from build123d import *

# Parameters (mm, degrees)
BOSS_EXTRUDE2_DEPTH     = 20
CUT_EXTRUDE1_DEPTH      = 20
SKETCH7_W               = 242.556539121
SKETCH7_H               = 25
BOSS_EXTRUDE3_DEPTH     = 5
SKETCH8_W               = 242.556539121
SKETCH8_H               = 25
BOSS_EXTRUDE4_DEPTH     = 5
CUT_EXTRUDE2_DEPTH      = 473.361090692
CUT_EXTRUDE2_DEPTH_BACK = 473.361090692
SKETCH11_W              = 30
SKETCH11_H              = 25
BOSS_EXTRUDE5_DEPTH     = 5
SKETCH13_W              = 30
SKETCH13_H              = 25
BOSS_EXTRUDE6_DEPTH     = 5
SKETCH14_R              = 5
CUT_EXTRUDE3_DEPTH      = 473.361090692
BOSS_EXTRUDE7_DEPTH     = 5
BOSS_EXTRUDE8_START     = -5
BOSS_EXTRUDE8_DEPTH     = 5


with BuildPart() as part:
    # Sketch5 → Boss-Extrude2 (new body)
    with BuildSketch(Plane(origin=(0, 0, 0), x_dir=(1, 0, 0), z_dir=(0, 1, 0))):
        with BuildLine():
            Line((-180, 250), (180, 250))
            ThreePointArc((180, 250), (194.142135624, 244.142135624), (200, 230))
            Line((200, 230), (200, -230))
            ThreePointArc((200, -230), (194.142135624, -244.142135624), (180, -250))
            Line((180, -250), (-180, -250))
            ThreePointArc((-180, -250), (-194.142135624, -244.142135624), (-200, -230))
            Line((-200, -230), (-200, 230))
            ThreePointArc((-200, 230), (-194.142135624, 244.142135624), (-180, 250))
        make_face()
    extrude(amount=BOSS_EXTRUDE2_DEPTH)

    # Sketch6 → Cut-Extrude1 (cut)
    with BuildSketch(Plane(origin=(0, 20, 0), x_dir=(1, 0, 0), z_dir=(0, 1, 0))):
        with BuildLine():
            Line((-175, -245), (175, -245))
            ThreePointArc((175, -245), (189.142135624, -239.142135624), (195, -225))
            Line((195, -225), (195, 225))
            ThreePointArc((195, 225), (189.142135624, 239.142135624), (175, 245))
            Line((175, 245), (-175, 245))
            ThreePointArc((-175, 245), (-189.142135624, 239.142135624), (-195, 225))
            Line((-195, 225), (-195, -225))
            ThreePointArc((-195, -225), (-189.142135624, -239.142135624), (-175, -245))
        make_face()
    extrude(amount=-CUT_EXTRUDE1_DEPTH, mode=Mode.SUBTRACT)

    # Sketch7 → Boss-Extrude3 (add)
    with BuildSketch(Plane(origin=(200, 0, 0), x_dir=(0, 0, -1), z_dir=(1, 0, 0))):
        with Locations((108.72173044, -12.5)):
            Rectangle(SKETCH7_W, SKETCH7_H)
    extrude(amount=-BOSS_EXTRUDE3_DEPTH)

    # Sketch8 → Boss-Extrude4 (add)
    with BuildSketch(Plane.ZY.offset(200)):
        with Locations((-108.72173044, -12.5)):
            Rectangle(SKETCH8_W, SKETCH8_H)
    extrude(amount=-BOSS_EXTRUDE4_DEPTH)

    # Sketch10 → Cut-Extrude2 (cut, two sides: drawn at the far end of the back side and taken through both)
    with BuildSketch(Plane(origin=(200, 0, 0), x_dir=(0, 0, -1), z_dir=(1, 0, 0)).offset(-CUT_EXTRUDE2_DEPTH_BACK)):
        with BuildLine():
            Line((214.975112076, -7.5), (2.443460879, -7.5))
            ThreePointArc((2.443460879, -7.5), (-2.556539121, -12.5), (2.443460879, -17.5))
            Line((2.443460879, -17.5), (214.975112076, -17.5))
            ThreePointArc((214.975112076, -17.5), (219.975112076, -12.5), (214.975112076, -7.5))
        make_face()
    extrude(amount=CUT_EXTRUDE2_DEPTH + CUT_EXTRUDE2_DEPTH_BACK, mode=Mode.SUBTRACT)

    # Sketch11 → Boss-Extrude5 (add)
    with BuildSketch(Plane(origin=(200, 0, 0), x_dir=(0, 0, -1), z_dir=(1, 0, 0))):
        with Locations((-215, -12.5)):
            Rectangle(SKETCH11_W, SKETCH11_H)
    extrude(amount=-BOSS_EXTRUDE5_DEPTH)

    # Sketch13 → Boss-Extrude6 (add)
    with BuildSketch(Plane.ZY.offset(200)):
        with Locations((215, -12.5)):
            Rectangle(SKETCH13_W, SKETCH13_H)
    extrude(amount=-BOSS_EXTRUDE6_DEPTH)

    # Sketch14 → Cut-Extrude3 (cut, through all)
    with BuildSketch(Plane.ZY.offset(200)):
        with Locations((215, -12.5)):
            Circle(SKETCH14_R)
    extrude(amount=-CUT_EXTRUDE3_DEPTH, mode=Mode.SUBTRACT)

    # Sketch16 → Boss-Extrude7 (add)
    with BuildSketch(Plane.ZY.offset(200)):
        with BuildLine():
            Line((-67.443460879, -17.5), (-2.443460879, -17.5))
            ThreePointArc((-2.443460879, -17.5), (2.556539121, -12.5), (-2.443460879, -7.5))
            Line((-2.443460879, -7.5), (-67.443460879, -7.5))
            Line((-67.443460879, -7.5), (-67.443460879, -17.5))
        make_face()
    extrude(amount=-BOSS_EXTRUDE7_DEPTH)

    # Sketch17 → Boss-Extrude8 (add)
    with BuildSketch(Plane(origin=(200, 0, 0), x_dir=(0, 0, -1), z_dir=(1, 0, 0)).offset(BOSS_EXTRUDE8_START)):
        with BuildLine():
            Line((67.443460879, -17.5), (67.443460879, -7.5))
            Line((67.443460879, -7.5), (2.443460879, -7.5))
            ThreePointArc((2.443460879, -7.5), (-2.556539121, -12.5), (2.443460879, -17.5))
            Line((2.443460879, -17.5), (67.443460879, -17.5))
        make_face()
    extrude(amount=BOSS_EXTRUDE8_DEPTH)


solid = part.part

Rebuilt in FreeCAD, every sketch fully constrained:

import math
import FreeCAD as App
import Part
import Sketcher
from FreeCAD import Vector


def add_polygon(sketch, points):
    """Adds a closed chain of lines whose ends are joined by coincident constraints."""
    first, n = sketch.GeometryCount, len(points)
    for a, b in zip(points, points[1:] + points[:1]):
        sketch.addGeometry(Part.LineSegment(App.Vector(*a, 0), App.Vector(*b, 0)), False)
    for i in range(n):
        sketch.addConstraint(Sketcher.Constraint("Coincident", first + i, 2, first + (i + 1) % n, 1))

doc = App.newDocument("Part")
body = doc.addObject("PartDesign::Body", "Body")

# Sketch on XZ plane
sketch1 = doc.addObject("Sketcher::SketchObject", "Sketch")
body.addObject(sketch1)
sketch1.AttachmentSupport = (doc.XZ_Plane, [""])
sketch1.MapMode = "FlatFace"
sketch1.addGeometry([
    Part.LineSegment(Vector(180, -250, 0), Vector(-180, -250, 0)),  # 0
    Part.ArcOfCircle(Part.Circle(Vector(-180, -230, 0), Vector(0, 0, 1), 20), math.radians(180), math.radians(270)),  # 1
    Part.LineSegment(Vector(-200, -230, 0), Vector(-200, 230, 0)),  # 2
    Part.ArcOfCircle(Part.Circle(Vector(-180, 230, 0), Vector(0, 0, 1), 20), math.radians(90), math.radians(180)),  # 3
    Part.LineSegment(Vector(-180, 250, 0), Vector(180, 250, 0)),  # 4
    Part.ArcOfCircle(Part.Circle(Vector(180, 230, 0), Vector(0, 0, 1), 20), math.radians(0), math.radians(90)),  # 5
    Part.LineSegment(Vector(200, 230, 0), Vector(200, -230, 0)),  # 6
    Part.ArcOfCircle(Part.Circle(Vector(180, -230, 0), Vector(0, 0, 1), 20), math.radians(-90), math.radians(0)),  # 7
], False)
sketch1.addConstraint([
    Sketcher.Constraint("Tangent", 0, 2, 1, 2),
    Sketcher.Constraint("Tangent", 1, 1, 2, 1),
    Sketcher.Constraint("Tangent", 2, 2, 3, 2),
    Sketcher.Constraint("Tangent", 3, 1, 4, 1),
    Sketcher.Constraint("Tangent", 4, 2, 5, 2),
    Sketcher.Constraint("Tangent", 5, 1, 6, 1),
    Sketcher.Constraint("Tangent", 6, 2, 7, 2),
    Sketcher.Constraint("Tangent", 7, 1, 0, 1),
    Sketcher.Constraint("Horizontal", 0),
    Sketcher.Constraint("Vertical", 2),
    Sketcher.Constraint("Horizontal", 4),
    Sketcher.Constraint("Vertical", 6),
    Sketcher.Constraint("Equal", 1, 3),
    Sketcher.Constraint("Equal", 3, 5),
    Sketcher.Constraint("Equal", 5, 7),
    Sketcher.Constraint("Symmetric", 1, 3, 5, 3, -1, 1),
    Sketcher.Constraint("Radius", 1, 20.0),
    Sketcher.Constraint("DistanceX", 0, 2, 0, 1, 360.0),
    Sketcher.Constraint("DistanceY", 2, 1, 2, 2, 460.0),
])
pad1 = doc.addObject("PartDesign::Pad", "Pad")
body.addObject(pad1)
pad1.Profile = sketch1
pad1.Length = 20
pad1.Reversed = True

# Sketch on XZ plane
sketch2 = doc.addObject("Sketcher::SketchObject", "Sketch001")
body.addObject(sketch2)
sketch2.AttachmentSupport = (doc.XZ_Plane, [""])
sketch2.MapMode = "FlatFace"
sketch2.AttachmentOffset = App.Placement(Vector(0, 0, -20), App.Rotation())
sketch2.addGeometry([
    Part.LineSegment(Vector(-175, 245, 0), Vector(175, 245, 0)),  # 0
    Part.ArcOfCircle(Part.Circle(Vector(175, 225, 0), Vector(0, 0, 1), 20), math.radians(0), math.radians(90)),  # 1
    Part.LineSegment(Vector(195, 225, 0), Vector(195, -225, 0)),  # 2
    Part.ArcOfCircle(Part.Circle(Vector(175, -225, 0), Vector(0, 0, 1), 20), math.radians(-90), math.radians(0)),  # 3
    Part.LineSegment(Vector(175, -245, 0), Vector(-175, -245, 0)),  # 4
    Part.ArcOfCircle(Part.Circle(Vector(-175, -225, 0), Vector(0, 0, 1), 20), math.radians(180), math.radians(270)),  # 5
    Part.LineSegment(Vector(-195, -225, 0), Vector(-195, 225, 0)),  # 6
    Part.ArcOfCircle(Part.Circle(Vector(-175, 225, 0), Vector(0, 0, 1), 20), math.radians(90), math.radians(180)),  # 7
], False)
sketch2.addConstraint([
    Sketcher.Constraint("Tangent", 0, 2, 1, 2),
    Sketcher.Constraint("Tangent", 1, 1, 2, 1),
    Sketcher.Constraint("Tangent", 2, 2, 3, 2),
    Sketcher.Constraint("Tangent", 3, 1, 4, 1),
    Sketcher.Constraint("Tangent", 4, 2, 5, 2),
    Sketcher.Constraint("Tangent", 5, 1, 6, 1),
    Sketcher.Constraint("Tangent", 6, 2, 7, 2),
    Sketcher.Constraint("Tangent", 7, 1, 0, 1),
    Sketcher.Constraint("Horizontal", 0),
    Sketcher.Constraint("Vertical", 2),
    Sketcher.Constraint("Horizontal", 4),
    Sketcher.Constraint("Vertical", 6),
    Sketcher.Constraint("Equal", 1, 3),
    Sketcher.Constraint("Equal", 3, 5),
    Sketcher.Constraint("Equal", 5, 7),
    Sketcher.Constraint("Symmetric", 1, 3, 5, 3, -1, 1),
    Sketcher.Constraint("Radius", 1, 20.0),
    Sketcher.Constraint("DistanceX", 0, 1, 0, 2, 350.0),
    Sketcher.Constraint("DistanceY", 2, 2, 2, 1, 450.0),
])
pocket1 = doc.addObject("PartDesign::Pocket", "Pocket")
body.addObject(pocket1)
pocket1.Profile = sketch2
pocket1.Length = 20
pocket1.Reversed = True

# Sketch on YZ plane
sketch3 = doc.addObject("Sketcher::SketchObject", "Sketch002")
body.addObject(sketch3)
sketch3.AttachmentSupport = (doc.YZ_Plane, [""])
sketch3.MapMode = "FlatFace"
sketch3.AttachmentOffset = App.Placement(Vector(0, 0, 200), App.Rotation())
add_polygon(sketch3, [(0, 12.556539), (-25, 12.556539), (-25, -230), (0, -230)])  # lines 0-3
sketch3.addConstraint([
    Sketcher.Constraint("Horizontal", 0),
    Sketcher.Constraint("Vertical", 1),
    Sketcher.Constraint("Horizontal", 2),
    Sketcher.Constraint("Vertical", 3),
    Sketcher.Constraint("PointOnObject", 2, 2, -2),
    Sketcher.Constraint("DistanceX", 0, 2, 0, 1, 25.0),
    Sketcher.Constraint("DistanceY", 1, 2, -1, 1, 230.0),
    Sketcher.Constraint("DistanceY", 1, 2, 1, 1, 242.556539),
])
pad2 = doc.addObject("PartDesign::Pad", "Pad001")
body.addObject(pad2)
pad2.Profile = sketch3
pad2.Length = 5
pad2.Reversed = True

# Sketch on YZ plane
sketch4 = doc.addObject("Sketcher::SketchObject", "Sketch003")
body.addObject(sketch4)
sketch4.AttachmentSupport = (doc.YZ_Plane, [""])
sketch4.MapMode = "FlatFace"
sketch4.AttachmentOffset = App.Placement(Vector(0, 0, -200), App.Rotation())
add_polygon(sketch4, [(0, -230), (-25, -230), (-25, 12.556539), (0, 12.556539)])  # lines 0-3
sketch4.addConstraint([
    Sketcher.Constraint("Horizontal", 0),
    Sketcher.Constraint("Vertical", 1),
    Sketcher.Constraint("Horizontal", 2),
    Sketcher.Constraint("Vertical", 3),
    Sketcher.Constraint("PointOnObject", 2, 2, -2),
    Sketcher.Constraint("DistanceX", 0, 2, 0, 1, 25.0),
    Sketcher.Constraint("DistanceY", 0, 2, -1, 1, 230.0),
    Sketcher.Constraint("DistanceY", 1, 1, 1, 2, 242.556539),
])
pad3 = doc.addObject("PartDesign::Pad", "Pad002")
body.addObject(pad3)
pad3.Profile = sketch4
pad3.Length = 5

# Sketch on YZ plane
sketch5 = doc.addObject("Sketcher::SketchObject", "Sketch004")
body.addObject(sketch5)
sketch5.AttachmentSupport = (doc.YZ_Plane, [""])
sketch5.MapMode = "FlatFace"
sketch5.AttachmentOffset = App.Placement(Vector(0, 0, 200), App.Rotation())
sketch5.addGeometry([
    Part.LineSegment(Vector(-7.5, -214.975112, 0), Vector(-7.5, -2.443461, 0)),
    Part.ArcOfCircle(Part.Circle(Vector(-12.5, -2.443461, 0), Vector(0, 0, 1), 5), math.radians(0), math.radians(180)),
    Part.LineSegment(Vector(-17.5, -2.443461, 0), Vector(-17.5, -214.975112, 0)),
    Part.ArcOfCircle(Part.Circle(Vector(-12.5, -214.975112, 0), Vector(0, 0, 1), 5), math.radians(180), math.radians(360)),
], False)
sketch5.addConstraint([
    Sketcher.Constraint("Tangent", 0, 2, 1, 1),
    Sketcher.Constraint("Tangent", 1, 2, 2, 1),
    Sketcher.Constraint("Tangent", 2, 2, 3, 1),
    Sketcher.Constraint("Tangent", 3, 2, 0, 1),
    Sketcher.Constraint("Vertical", 0),
    Sketcher.Constraint("Vertical", 2),
    Sketcher.Constraint("Radius", 1, 5.0),
    Sketcher.Constraint("DistanceX", 1, 3, -1, 1, 12.5),
    Sketcher.Constraint("DistanceY", 0, 1, 0, 2, 212.531651),
    Sketcher.Constraint("DistanceY", 1, 3, -1, 1, 2.443461),
])
pocket2 = doc.addObject("PartDesign::Pocket", "Pocket001")
body.addObject(pocket2)
pocket2.Profile = sketch5
pocket2.Type = "ThroughAll"
pocket2.Midplane = True

# Sketch on YZ plane
sketch6 = doc.addObject("Sketcher::SketchObject", "Sketch005")
body.addObject(sketch6)
sketch6.AttachmentSupport = (doc.YZ_Plane, [""])
sketch6.MapMode = "FlatFace"
sketch6.AttachmentOffset = App.Placement(Vector(0, 0, 200), App.Rotation())
add_polygon(sketch6, [(0, 230), (-25, 230), (-25, 200), (0, 200)])  # lines 0-3
sketch6.addConstraint([
    Sketcher.Constraint("Horizontal", 0),
    Sketcher.Constraint("Vertical", 1),
    Sketcher.Constraint("Horizontal", 2),
    Sketcher.Constraint("Vertical", 3),
    Sketcher.Constraint("PointOnObject", 2, 2, -2),
    Sketcher.Constraint("DistanceX", 0, 2, 0, 1, 25.0),
    Sketcher.Constraint("DistanceY", 1, 2, 1, 1, 30.0),
    Sketcher.Constraint("DistanceY", -1, 1, 0, 2, 230.0),
])
pad4 = doc.addObject("PartDesign::Pad", "Pad003")
body.addObject(pad4)
pad4.Profile = sketch6
pad4.Length = 5
pad4.Reversed = True

# Sketch on YZ plane
sketch7 = doc.addObject("Sketcher::SketchObject", "Sketch006")
body.addObject(sketch7)
sketch7.AttachmentSupport = (doc.YZ_Plane, [""])
sketch7.MapMode = "FlatFace"
sketch7.AttachmentOffset = App.Placement(Vector(0, 0, -200), App.Rotation())
add_polygon(sketch7, [(0, 200), (-25, 200), (-25, 230), (0, 230)])  # lines 0-3
sketch7.addConstraint([
    Sketcher.Constraint("Horizontal", 0),
    Sketcher.Constraint("Vertical", 1),
    Sketcher.Constraint("Horizontal", 2),
    Sketcher.Constraint("Vertical", 3),
    Sketcher.Constraint("PointOnObject", 2, 2, -2),
    Sketcher.Constraint("DistanceX", 0, 2, 0, 1, 25.0),
    Sketcher.Constraint("DistanceY", 1, 1, 1, 2, 30.0),
    Sketcher.Constraint("DistanceY", -1, 1, 0, 2, 200.0),
])
pad5 = doc.addObject("PartDesign::Pad", "Pad004")
body.addObject(pad5)
pad5.Profile = sketch7
pad5.Length = 5

# Sketch on YZ plane
sketch8 = doc.addObject("Sketcher::SketchObject", "Sketch007")
body.addObject(sketch8)
sketch8.AttachmentSupport = (doc.YZ_Plane, [""])
sketch8.MapMode = "FlatFace"
sketch8.AttachmentOffset = App.Placement(Vector(0, 0, -200), App.Rotation())
sketch8.addGeometry(Part.Circle(Vector(-12.5, 215, 0), Vector(0, 0, 1), 5), False)
sketch8.addConstraint([
    Sketcher.Constraint("Diameter", 0, 10.0),
    Sketcher.Constraint("DistanceY", -1, 1, 0, 3, 215.0),
    Sketcher.Constraint("DistanceX", 0, 3, -1, 1, 12.5),
])
pocket3 = doc.addObject("PartDesign::Pocket", "Pocket002")
body.addObject(pocket3)
pocket3.Profile = sketch8
pocket3.Type = "ThroughAll"
pocket3.Reversed = True

# Sketch on YZ plane
sketch9 = doc.addObject("Sketcher::SketchObject", "Sketch008")
body.addObject(sketch9)
sketch9.AttachmentSupport = (doc.YZ_Plane, [""])
sketch9.MapMode = "FlatFace"
sketch9.AttachmentOffset = App.Placement(Vector(0, 0, -200), App.Rotation())
sketch9.addGeometry([
    Part.LineSegment(Vector(-17.5, -67.443461, 0), Vector(-17.5, -2.443461, 0)),
    Part.ArcOfCircle(Part.Circle(Vector(-12.5, -2.443461, 0), Vector(0, 0, 1), 5), math.radians(0), math.radians(180)),
    Part.LineSegment(Vector(-7.5, -2.443461, 0), Vector(-7.5, -67.443461, 0)),
    Part.LineSegment(Vector(-7.5, -67.443461, 0), Vector(-17.5, -67.443461, 0)),
], False)
sketch9.addConstraint([
    Sketcher.Constraint("Tangent", 0, 2, 1, 2),
    Sketcher.Constraint("Tangent", 1, 1, 2, 1),
    Sketcher.Constraint("Coincident", 2, 2, 3, 1),
    Sketcher.Constraint("Coincident", 3, 2, 0, 1),
    Sketcher.Constraint("Vertical", 0),
    Sketcher.Constraint("Vertical", 2),
    Sketcher.Constraint("Horizontal", 3),
    Sketcher.Constraint("Radius", 1, 5.0),
    Sketcher.Constraint("DistanceY", 0, 1, 0, 2, 65.0),
    Sketcher.Constraint("DistanceX", 1, 3, -1, 1, 12.5),
    Sketcher.Constraint("DistanceY", 1, 3, -1, 1, 2.443461),
])
pad6 = doc.addObject("PartDesign::Pad", "Pad005")
body.addObject(pad6)
pad6.Profile = sketch9
pad6.Length = 5

# Sketch on YZ plane
sketch10 = doc.addObject("Sketcher::SketchObject", "Sketch009")
body.addObject(sketch10)
sketch10.AttachmentSupport = (doc.YZ_Plane, [""])
sketch10.MapMode = "FlatFace"
sketch10.AttachmentOffset = App.Placement(Vector(0, 0, 195), App.Rotation())
sketch10.addGeometry([
    Part.LineSegment(Vector(-17.5, -67.443461, 0), Vector(-7.5, -67.443461, 0)),
    Part.LineSegment(Vector(-7.5, -67.443461, 0), Vector(-7.5, -2.443461, 0)),
    Part.ArcOfCircle(Part.Circle(Vector(-12.5, -2.443461, 0), Vector(0, 0, 1), 5), math.radians(0), math.radians(180)),
    Part.LineSegment(Vector(-17.5, -2.443461, 0), Vector(-17.5, -67.443461, 0)),
], False)
sketch10.addConstraint([
    Sketcher.Constraint("Coincident", 0, 2, 1, 1),
    Sketcher.Constraint("Tangent", 1, 2, 2, 1),
    Sketcher.Constraint("Tangent", 2, 2, 3, 1),
    Sketcher.Constraint("Coincident", 3, 2, 0, 1),
    Sketcher.Constraint("Horizontal", 0),
    Sketcher.Constraint("Vertical", 1),
    Sketcher.Constraint("Vertical", 3),
    Sketcher.Constraint("Radius", 2, 5.0),
    Sketcher.Constraint("DistanceY", 1, 1, 1, 2, 65.0),
    Sketcher.Constraint("DistanceX", 2, 3, -1, 1, 12.5),
    Sketcher.Constraint("DistanceY", 2, 3, -1, 1, 2.443461),
])
pad7 = doc.addObject("PartDesign::Pad", "Pad006")
body.addObject(pad7)
pad7.Profile = sketch10
pad7.Length = 5

doc.recompute()
